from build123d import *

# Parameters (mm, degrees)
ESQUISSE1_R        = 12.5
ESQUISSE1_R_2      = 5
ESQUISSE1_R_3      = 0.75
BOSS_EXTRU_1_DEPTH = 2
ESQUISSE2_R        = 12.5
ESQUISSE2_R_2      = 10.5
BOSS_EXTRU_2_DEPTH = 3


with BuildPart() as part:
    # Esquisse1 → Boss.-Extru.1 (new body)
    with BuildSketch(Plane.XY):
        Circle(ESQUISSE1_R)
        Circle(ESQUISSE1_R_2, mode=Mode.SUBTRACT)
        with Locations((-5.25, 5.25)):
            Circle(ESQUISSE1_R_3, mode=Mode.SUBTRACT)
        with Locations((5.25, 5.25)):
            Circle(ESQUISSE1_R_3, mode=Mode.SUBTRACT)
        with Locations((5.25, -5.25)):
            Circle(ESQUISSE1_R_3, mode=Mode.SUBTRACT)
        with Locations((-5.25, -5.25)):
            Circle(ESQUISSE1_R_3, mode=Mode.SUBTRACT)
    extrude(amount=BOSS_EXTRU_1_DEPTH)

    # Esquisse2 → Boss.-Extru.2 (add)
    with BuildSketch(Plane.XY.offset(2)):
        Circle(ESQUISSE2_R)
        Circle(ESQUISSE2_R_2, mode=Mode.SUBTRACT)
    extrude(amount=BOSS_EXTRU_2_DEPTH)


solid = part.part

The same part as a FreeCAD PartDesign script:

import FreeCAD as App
import Part
import Sketcher

V = App.Vector
Q = App.Units.Quantity

doc = App.newDocument("Part")
body = doc.addObject("PartDesign::Body", "Body")

sketch1 = body.newObject("Sketcher::SketchObject", "Sketch")
sketch1.AttachmentSupport = (doc.getObject("XY_Plane"), [""])
sketch1.MapMode = "FlatFace"
sketch1.addGeometry([
    Part.Circle(V(0, 0, 0), V(0, 0, 1), 12.5),
    Part.Circle(V(-5.2, -5.2, 0), V(0, 0, 1), 0.8),
    Part.Circle(V(5.2, -5.2, 0), V(0, 0, 1), 0.8),
    Part.Circle(V(-5.2, 5.2, 0), V(0, 0, 1), 0.8),
    Part.Circle(V(0, 0, 0), V(0, 0, 1), 5),
    Part.Circle(V(5.2, 5.2, 0), V(0, 0, 1), 0.8),
], False)
sketch1.addConstraint([
    Sketcher.Constraint("Coincident", 0, 3, -1, 1),
    Sketcher.Constraint("Coincident", 4, 3, -1, 1),
    Sketcher.Constraint("Equal", 1, 2),
    Sketcher.Constraint("Equal", 2, 3),
    Sketcher.Constraint("Equal", 3, 5),
    Sketcher.Constraint("Symmetric", 2, 3, 3, 3, -1, 1),
    Sketcher.Constraint("Symmetric", 1, 3, 5, 3, -1, 1),
    Sketcher.Constraint("Symmetric", 1, 3, 2, 3, -2),
    Sketcher.Constraint("Diameter", 0, Q("25 mm")),
    Sketcher.Constraint("Diameter", 4, Q("10 mm")),
    Sketcher.Constraint("Diameter", 1, Q("1.5 mm")),
    Sketcher.Constraint("DistanceX", 1, 3, 2, 3, Q("10.5 mm")),
    Sketcher.Constraint("DistanceY", 1, 3, 3, 3, Q("10.5 mm")),
])
pad1 = body.newObject("PartDesign::Pad", "Pad")
pad1.Profile = sketch1
pad1.Length = 2

sketch2 = body.newObject("Sketcher::SketchObject", "Sketch001")
sketch2.AttachmentSupport = (doc.getObject("XY_Plane"), [""])
sketch2.MapMode = "FlatFace"
sketch2.AttachmentOffset = App.Placement(V(0, 0, 2), App.Rotation())
sketch2.addGeometry([
    Part.Circle(V(0, 0, 0), V(0, 0, 1), 12),
    Part.Circle(V(0, 0, 0), V(0, 0, 1), 10),
], False)
sketch2.addConstraint([
    Sketcher.Constraint("Coincident", 0, 3, -1, 1),
    Sketcher.Constraint("Coincident", 1, 3, -1, 1),
    Sketcher.Constraint("Diameter", 0, Q("25 mm")),
    Sketcher.Constraint("Diameter", 1, Q("21 mm")),
])
pad2 = body.newObject("PartDesign::Pad", "Pad001")
pad2.Profile = sketch2
pad2.Length = 3

doc.recompute()
